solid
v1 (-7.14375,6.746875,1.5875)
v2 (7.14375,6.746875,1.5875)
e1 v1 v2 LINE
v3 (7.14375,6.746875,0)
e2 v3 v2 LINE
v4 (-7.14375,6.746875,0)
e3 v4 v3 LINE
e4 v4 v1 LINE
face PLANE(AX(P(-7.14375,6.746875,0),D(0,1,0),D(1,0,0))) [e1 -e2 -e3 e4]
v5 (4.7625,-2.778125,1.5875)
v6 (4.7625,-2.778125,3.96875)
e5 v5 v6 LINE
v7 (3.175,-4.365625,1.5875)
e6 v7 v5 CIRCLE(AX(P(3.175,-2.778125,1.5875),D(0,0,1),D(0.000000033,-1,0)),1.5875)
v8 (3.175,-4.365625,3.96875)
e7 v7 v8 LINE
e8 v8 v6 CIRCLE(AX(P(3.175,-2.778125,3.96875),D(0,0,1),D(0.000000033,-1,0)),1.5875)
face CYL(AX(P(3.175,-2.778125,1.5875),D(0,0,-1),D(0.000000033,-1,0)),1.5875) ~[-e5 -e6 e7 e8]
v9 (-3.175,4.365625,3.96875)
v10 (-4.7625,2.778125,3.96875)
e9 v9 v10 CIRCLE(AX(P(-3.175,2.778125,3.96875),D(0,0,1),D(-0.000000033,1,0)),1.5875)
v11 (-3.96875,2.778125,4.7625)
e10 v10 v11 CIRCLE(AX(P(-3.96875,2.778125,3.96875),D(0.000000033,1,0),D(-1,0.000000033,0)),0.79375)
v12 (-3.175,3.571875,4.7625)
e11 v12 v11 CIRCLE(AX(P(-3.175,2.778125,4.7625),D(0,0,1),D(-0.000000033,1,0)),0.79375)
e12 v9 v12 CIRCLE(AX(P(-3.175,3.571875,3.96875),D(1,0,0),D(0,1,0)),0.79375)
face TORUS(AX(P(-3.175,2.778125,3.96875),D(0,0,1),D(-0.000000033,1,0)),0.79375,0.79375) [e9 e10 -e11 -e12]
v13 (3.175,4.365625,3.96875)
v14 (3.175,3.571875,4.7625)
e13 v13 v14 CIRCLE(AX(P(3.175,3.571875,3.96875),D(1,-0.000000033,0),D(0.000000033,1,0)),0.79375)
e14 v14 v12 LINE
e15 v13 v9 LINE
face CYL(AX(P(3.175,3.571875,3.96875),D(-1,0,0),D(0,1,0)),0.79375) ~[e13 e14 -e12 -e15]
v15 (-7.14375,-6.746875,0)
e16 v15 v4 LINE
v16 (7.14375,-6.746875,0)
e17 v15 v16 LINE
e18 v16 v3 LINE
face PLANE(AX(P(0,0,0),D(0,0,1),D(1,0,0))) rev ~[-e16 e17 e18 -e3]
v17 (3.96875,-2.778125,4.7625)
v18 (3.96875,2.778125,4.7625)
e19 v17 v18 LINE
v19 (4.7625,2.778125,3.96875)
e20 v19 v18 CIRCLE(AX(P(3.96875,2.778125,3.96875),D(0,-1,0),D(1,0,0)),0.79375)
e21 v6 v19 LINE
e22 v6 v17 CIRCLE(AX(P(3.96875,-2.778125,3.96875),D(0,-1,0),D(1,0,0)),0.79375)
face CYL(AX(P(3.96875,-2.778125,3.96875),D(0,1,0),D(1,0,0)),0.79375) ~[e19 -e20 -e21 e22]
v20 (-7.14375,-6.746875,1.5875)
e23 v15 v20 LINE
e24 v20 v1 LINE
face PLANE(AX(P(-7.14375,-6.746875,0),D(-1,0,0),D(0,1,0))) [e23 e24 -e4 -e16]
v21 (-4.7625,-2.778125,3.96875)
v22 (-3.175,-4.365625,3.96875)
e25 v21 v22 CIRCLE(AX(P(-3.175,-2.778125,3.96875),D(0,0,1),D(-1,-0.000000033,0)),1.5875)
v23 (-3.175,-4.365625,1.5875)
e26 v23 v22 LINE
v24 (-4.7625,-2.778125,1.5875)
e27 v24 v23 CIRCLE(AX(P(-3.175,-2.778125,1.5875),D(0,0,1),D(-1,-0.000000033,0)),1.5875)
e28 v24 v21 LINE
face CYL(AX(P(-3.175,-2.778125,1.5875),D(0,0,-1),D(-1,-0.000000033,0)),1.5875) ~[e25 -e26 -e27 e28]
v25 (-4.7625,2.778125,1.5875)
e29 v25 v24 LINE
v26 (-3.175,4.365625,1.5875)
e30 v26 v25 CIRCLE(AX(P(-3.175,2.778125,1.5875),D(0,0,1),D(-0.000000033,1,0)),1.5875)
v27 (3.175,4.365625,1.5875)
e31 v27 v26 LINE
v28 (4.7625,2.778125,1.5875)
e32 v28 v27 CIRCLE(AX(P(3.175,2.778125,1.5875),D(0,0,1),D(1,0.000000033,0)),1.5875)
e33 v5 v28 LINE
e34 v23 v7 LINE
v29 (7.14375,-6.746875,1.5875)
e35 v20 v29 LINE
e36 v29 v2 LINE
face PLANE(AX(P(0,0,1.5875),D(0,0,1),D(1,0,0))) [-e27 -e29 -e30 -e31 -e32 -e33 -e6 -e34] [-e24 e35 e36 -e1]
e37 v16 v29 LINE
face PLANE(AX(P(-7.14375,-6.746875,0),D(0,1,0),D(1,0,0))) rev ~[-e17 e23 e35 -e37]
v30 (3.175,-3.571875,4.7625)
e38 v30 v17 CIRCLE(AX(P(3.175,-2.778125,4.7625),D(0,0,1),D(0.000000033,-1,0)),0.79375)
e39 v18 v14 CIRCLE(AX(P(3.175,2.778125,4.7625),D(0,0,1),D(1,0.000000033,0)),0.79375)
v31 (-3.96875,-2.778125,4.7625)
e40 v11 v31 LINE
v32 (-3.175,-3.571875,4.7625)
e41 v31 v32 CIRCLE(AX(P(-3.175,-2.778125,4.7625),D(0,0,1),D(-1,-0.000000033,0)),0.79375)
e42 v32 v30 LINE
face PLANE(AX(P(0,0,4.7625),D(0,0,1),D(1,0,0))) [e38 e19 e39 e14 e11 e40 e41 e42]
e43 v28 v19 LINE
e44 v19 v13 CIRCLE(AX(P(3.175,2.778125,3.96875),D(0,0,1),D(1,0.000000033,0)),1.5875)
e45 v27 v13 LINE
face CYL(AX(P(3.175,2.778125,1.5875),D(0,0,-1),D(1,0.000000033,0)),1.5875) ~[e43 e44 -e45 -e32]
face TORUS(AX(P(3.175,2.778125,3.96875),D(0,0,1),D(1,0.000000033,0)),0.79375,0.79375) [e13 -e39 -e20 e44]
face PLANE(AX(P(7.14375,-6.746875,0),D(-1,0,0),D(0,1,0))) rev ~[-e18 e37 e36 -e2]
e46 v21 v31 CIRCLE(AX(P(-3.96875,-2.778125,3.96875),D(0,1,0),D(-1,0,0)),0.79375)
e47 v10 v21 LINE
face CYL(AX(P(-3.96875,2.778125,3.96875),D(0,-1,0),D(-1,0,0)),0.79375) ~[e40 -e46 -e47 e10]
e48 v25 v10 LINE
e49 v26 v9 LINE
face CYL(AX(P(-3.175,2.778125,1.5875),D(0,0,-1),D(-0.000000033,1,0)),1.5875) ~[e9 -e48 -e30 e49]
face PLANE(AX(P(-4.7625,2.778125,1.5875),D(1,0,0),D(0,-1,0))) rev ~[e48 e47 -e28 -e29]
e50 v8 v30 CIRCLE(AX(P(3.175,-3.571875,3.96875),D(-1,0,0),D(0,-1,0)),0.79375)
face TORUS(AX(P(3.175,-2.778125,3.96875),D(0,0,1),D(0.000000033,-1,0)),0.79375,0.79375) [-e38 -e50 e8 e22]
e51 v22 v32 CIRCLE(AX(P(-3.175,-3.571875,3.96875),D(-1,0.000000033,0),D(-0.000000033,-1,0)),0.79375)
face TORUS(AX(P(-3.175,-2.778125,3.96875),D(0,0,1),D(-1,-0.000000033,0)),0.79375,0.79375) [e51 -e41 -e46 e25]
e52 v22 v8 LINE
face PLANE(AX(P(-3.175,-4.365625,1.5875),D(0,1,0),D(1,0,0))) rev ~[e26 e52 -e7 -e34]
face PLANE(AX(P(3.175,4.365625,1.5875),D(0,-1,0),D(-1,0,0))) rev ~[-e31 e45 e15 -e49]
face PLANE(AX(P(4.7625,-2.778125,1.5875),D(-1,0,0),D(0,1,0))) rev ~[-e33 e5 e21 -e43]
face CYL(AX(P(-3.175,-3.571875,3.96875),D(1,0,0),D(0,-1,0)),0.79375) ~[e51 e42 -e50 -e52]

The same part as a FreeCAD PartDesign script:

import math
import FreeCAD as App
import Part
import Sketcher

V = App.Vector
Q = App.Units.Quantity


def edges_at(feature, points):
    """Names of the edges that pass closest to the given points."""
    edges = feature.Shape.Edges
    near = lambda p: min(range(len(edges)), key=lambda i: edges[i].distToShape(Part.Vertex(*p))[0])
    return sorted({f"Edge{near(p) + 1}" for p in points})

doc = App.newDocument("Part")
body = doc.addObject("PartDesign::Body", "Body")

# Sketch on XY plane
sketch1 = doc.addObject("Sketcher::SketchObject", "Sketch")
body.addObject(sketch1)
sketch1.AttachmentSupport = (doc.XY_Plane, [""])
sketch1.MapMode = "FlatFace"
sketch1.addGeometry(Part.LineSegment(V(-7, 7, 0), V(-7, -7, 0)), False)
sketch1.addGeometry(Part.LineSegment(V(-7, -7, 0), V(7, -7, 0)), False)
sketch1.addGeometry(Part.LineSegment(V(7, -7, 0), V(7, 7, 0)), False)
sketch1.addGeometry(Part.LineSegment(V(7, 7, 0), V(-7, 7, 0)), False)
sketch1.addConstraint(Sketcher.Constraint("Coincident", 0, 2, 1, 1))
sketch1.addConstraint(Sketcher.Constraint("Coincident", 1, 2, 2, 1))
sketch1.addConstraint(Sketcher.Constraint("Coincident", 2, 2, 3, 1))
sketch1.addConstraint(Sketcher.Constraint("Coincident", 3, 2, 0, 1))
sketch1.addConstraint(Sketcher.Constraint("Vertical", 0))
sketch1.addConstraint(Sketcher.Constraint("Horizontal", 1))
sketch1.addConstraint(Sketcher.Constraint("Vertical", 2))
sketch1.addConstraint(Sketcher.Constraint("Horizontal", 3))
sketch1.addConstraint(Sketcher.Constraint("Symmetric", 0, 2, 2, 2, -1, 1))
sketch1.addConstraint(Sketcher.Constraint("DistanceX", 1, 1, 1, 2, Q("0.5625 in")))
sketch1.addConstraint(Sketcher.Constraint("DistanceY", 0, 2, 0, 1, Q("0.53125 in")))
pad1 = doc.addObject("PartDesign::Pad", "Pad")
body.addObject(pad1)
pad1.Profile = sketch1
pad1.Length = Q("0.0625 in")

# Sketch on XY plane
sketch2 = doc.addObject("Sketcher::SketchObject", "Sketch001")
body.addObject(sketch2)
sketch2.AttachmentSupport = (doc.XY_Plane, [""])
sketch2.MapMode = "FlatFace"
sketch2.AttachmentOffset = App.Placement(V(0, 0, 0.0625 * 25.4), App.Rotation())
sketch2.addGeometry(Part.ArcOfCircle(Part.Circle(V(3.2, 2.8, 0), V(0, 0, 1), 1.6), math.radians(0), math.radians(90)), False)
sketch2.addGeometry(Part.LineSegment(V(3.2, 4.4, 0), V(-3.2, 4.4, 0)), False)
sketch2.addGeometry(Part.ArcOfCircle(Part.Circle(V(-3.2, 2.8, 0), V(0, 0, 1), 1.6), math.radians(90), math.radians(180)), False)
sketch2.addGeometry(Part.LineSegment(V(-4.8, 2.8, 0), V(-4.8, -2.8, 0)), False)
sketch2.addGeometry(Part.ArcOfCircle(Part.Circle(V(-3.2, -2.8, 0), V(0, 0, 1), 1.6), math.radians(-180), math.radians(-90)), False)
sketch2.addGeometry(Part.LineSegment(V(-3.2, -4.4, 0), V(3.2, -4.4, 0)), False)
sketch2.addGeometry(Part.ArcOfCircle(Part.Circle(V(3.2, -2.8, 0), V(0, 0, 1), 1.6), math.radians(-90), math.radians(0)), False)
sketch2.addGeometry(Part.LineSegment(V(4.8, -2.8, 0), V(4.8, 2.8, 0)), False)
sketch2.addConstraint(Sketcher.Constraint("Tangent", 0, 2, 1, 1))
sketch2.addConstraint(Sketcher.Constraint("Tangent", 1, 2, 2, 1))
sketch2.addConstraint(Sketcher.Constraint("Tangent", 2, 2, 3, 1))
sketch2.addConstraint(Sketcher.Constraint("Tangent", 3, 2, 4, 1))
sketch2.addConstraint(Sketcher.Constraint("Tangent", 4, 2, 5, 1))
sketch2.addConstraint(Sketcher.Constraint("Tangent", 5, 2, 6, 1))
sketch2.addConstraint(Sketcher.Constraint("Tangent", 6, 2, 7, 1))
sketch2.addConstraint(Sketcher.Constraint("Tangent", 7, 2, 0, 1))
sketch2.addConstraint(Sketcher.Constraint("Horizontal", 1))
sketch2.addConstraint(Sketcher.Constraint("Vertical", 3))
sketch2.addConstraint(Sketcher.Constraint("Horizontal", 5))
sketch2.addConstraint(Sketcher.Constraint("Vertical", 7))
sketch2.addConstraint(Sketcher.Constraint("Equal", 0, 2))
sketch2.addConstraint(Sketcher.Constraint("Equal", 2, 4))
sketch2.addConstraint(Sketcher.Constraint("Equal", 4, 6))
sketch2.addConstraint(Sketcher.Constraint("Symmetric", 0, 3, 4, 3, -1, 1))
sketch2.addConstraint(Sketcher.Constraint("Radius", 0, Q("0.0625 in")))
sketch2.addConstraint(Sketcher.Constraint("DistanceX", 1, 2, 1, 1, Q("0.25 in")))
sketch2.addConstraint(Sketcher.Constraint("DistanceY", 3, 2, 3, 1, Q("0.21875 in")))
pad2 = doc.addObject("PartDesign::Pad", "Pad001")
body.addObject(pad2)
pad2.Profile = sketch2
pad2.Length = Q("0.125 in")
doc.recompute()

fillet = doc.addObject("PartDesign::Fillet", "Fillet")
body.addObject(fillet)
fillet.Base = (pad2, edges_at(pad2, [(4.763, 0, 4.763)]))
fillet.Radius = Q("0.03125 in")

doc.recompute()
